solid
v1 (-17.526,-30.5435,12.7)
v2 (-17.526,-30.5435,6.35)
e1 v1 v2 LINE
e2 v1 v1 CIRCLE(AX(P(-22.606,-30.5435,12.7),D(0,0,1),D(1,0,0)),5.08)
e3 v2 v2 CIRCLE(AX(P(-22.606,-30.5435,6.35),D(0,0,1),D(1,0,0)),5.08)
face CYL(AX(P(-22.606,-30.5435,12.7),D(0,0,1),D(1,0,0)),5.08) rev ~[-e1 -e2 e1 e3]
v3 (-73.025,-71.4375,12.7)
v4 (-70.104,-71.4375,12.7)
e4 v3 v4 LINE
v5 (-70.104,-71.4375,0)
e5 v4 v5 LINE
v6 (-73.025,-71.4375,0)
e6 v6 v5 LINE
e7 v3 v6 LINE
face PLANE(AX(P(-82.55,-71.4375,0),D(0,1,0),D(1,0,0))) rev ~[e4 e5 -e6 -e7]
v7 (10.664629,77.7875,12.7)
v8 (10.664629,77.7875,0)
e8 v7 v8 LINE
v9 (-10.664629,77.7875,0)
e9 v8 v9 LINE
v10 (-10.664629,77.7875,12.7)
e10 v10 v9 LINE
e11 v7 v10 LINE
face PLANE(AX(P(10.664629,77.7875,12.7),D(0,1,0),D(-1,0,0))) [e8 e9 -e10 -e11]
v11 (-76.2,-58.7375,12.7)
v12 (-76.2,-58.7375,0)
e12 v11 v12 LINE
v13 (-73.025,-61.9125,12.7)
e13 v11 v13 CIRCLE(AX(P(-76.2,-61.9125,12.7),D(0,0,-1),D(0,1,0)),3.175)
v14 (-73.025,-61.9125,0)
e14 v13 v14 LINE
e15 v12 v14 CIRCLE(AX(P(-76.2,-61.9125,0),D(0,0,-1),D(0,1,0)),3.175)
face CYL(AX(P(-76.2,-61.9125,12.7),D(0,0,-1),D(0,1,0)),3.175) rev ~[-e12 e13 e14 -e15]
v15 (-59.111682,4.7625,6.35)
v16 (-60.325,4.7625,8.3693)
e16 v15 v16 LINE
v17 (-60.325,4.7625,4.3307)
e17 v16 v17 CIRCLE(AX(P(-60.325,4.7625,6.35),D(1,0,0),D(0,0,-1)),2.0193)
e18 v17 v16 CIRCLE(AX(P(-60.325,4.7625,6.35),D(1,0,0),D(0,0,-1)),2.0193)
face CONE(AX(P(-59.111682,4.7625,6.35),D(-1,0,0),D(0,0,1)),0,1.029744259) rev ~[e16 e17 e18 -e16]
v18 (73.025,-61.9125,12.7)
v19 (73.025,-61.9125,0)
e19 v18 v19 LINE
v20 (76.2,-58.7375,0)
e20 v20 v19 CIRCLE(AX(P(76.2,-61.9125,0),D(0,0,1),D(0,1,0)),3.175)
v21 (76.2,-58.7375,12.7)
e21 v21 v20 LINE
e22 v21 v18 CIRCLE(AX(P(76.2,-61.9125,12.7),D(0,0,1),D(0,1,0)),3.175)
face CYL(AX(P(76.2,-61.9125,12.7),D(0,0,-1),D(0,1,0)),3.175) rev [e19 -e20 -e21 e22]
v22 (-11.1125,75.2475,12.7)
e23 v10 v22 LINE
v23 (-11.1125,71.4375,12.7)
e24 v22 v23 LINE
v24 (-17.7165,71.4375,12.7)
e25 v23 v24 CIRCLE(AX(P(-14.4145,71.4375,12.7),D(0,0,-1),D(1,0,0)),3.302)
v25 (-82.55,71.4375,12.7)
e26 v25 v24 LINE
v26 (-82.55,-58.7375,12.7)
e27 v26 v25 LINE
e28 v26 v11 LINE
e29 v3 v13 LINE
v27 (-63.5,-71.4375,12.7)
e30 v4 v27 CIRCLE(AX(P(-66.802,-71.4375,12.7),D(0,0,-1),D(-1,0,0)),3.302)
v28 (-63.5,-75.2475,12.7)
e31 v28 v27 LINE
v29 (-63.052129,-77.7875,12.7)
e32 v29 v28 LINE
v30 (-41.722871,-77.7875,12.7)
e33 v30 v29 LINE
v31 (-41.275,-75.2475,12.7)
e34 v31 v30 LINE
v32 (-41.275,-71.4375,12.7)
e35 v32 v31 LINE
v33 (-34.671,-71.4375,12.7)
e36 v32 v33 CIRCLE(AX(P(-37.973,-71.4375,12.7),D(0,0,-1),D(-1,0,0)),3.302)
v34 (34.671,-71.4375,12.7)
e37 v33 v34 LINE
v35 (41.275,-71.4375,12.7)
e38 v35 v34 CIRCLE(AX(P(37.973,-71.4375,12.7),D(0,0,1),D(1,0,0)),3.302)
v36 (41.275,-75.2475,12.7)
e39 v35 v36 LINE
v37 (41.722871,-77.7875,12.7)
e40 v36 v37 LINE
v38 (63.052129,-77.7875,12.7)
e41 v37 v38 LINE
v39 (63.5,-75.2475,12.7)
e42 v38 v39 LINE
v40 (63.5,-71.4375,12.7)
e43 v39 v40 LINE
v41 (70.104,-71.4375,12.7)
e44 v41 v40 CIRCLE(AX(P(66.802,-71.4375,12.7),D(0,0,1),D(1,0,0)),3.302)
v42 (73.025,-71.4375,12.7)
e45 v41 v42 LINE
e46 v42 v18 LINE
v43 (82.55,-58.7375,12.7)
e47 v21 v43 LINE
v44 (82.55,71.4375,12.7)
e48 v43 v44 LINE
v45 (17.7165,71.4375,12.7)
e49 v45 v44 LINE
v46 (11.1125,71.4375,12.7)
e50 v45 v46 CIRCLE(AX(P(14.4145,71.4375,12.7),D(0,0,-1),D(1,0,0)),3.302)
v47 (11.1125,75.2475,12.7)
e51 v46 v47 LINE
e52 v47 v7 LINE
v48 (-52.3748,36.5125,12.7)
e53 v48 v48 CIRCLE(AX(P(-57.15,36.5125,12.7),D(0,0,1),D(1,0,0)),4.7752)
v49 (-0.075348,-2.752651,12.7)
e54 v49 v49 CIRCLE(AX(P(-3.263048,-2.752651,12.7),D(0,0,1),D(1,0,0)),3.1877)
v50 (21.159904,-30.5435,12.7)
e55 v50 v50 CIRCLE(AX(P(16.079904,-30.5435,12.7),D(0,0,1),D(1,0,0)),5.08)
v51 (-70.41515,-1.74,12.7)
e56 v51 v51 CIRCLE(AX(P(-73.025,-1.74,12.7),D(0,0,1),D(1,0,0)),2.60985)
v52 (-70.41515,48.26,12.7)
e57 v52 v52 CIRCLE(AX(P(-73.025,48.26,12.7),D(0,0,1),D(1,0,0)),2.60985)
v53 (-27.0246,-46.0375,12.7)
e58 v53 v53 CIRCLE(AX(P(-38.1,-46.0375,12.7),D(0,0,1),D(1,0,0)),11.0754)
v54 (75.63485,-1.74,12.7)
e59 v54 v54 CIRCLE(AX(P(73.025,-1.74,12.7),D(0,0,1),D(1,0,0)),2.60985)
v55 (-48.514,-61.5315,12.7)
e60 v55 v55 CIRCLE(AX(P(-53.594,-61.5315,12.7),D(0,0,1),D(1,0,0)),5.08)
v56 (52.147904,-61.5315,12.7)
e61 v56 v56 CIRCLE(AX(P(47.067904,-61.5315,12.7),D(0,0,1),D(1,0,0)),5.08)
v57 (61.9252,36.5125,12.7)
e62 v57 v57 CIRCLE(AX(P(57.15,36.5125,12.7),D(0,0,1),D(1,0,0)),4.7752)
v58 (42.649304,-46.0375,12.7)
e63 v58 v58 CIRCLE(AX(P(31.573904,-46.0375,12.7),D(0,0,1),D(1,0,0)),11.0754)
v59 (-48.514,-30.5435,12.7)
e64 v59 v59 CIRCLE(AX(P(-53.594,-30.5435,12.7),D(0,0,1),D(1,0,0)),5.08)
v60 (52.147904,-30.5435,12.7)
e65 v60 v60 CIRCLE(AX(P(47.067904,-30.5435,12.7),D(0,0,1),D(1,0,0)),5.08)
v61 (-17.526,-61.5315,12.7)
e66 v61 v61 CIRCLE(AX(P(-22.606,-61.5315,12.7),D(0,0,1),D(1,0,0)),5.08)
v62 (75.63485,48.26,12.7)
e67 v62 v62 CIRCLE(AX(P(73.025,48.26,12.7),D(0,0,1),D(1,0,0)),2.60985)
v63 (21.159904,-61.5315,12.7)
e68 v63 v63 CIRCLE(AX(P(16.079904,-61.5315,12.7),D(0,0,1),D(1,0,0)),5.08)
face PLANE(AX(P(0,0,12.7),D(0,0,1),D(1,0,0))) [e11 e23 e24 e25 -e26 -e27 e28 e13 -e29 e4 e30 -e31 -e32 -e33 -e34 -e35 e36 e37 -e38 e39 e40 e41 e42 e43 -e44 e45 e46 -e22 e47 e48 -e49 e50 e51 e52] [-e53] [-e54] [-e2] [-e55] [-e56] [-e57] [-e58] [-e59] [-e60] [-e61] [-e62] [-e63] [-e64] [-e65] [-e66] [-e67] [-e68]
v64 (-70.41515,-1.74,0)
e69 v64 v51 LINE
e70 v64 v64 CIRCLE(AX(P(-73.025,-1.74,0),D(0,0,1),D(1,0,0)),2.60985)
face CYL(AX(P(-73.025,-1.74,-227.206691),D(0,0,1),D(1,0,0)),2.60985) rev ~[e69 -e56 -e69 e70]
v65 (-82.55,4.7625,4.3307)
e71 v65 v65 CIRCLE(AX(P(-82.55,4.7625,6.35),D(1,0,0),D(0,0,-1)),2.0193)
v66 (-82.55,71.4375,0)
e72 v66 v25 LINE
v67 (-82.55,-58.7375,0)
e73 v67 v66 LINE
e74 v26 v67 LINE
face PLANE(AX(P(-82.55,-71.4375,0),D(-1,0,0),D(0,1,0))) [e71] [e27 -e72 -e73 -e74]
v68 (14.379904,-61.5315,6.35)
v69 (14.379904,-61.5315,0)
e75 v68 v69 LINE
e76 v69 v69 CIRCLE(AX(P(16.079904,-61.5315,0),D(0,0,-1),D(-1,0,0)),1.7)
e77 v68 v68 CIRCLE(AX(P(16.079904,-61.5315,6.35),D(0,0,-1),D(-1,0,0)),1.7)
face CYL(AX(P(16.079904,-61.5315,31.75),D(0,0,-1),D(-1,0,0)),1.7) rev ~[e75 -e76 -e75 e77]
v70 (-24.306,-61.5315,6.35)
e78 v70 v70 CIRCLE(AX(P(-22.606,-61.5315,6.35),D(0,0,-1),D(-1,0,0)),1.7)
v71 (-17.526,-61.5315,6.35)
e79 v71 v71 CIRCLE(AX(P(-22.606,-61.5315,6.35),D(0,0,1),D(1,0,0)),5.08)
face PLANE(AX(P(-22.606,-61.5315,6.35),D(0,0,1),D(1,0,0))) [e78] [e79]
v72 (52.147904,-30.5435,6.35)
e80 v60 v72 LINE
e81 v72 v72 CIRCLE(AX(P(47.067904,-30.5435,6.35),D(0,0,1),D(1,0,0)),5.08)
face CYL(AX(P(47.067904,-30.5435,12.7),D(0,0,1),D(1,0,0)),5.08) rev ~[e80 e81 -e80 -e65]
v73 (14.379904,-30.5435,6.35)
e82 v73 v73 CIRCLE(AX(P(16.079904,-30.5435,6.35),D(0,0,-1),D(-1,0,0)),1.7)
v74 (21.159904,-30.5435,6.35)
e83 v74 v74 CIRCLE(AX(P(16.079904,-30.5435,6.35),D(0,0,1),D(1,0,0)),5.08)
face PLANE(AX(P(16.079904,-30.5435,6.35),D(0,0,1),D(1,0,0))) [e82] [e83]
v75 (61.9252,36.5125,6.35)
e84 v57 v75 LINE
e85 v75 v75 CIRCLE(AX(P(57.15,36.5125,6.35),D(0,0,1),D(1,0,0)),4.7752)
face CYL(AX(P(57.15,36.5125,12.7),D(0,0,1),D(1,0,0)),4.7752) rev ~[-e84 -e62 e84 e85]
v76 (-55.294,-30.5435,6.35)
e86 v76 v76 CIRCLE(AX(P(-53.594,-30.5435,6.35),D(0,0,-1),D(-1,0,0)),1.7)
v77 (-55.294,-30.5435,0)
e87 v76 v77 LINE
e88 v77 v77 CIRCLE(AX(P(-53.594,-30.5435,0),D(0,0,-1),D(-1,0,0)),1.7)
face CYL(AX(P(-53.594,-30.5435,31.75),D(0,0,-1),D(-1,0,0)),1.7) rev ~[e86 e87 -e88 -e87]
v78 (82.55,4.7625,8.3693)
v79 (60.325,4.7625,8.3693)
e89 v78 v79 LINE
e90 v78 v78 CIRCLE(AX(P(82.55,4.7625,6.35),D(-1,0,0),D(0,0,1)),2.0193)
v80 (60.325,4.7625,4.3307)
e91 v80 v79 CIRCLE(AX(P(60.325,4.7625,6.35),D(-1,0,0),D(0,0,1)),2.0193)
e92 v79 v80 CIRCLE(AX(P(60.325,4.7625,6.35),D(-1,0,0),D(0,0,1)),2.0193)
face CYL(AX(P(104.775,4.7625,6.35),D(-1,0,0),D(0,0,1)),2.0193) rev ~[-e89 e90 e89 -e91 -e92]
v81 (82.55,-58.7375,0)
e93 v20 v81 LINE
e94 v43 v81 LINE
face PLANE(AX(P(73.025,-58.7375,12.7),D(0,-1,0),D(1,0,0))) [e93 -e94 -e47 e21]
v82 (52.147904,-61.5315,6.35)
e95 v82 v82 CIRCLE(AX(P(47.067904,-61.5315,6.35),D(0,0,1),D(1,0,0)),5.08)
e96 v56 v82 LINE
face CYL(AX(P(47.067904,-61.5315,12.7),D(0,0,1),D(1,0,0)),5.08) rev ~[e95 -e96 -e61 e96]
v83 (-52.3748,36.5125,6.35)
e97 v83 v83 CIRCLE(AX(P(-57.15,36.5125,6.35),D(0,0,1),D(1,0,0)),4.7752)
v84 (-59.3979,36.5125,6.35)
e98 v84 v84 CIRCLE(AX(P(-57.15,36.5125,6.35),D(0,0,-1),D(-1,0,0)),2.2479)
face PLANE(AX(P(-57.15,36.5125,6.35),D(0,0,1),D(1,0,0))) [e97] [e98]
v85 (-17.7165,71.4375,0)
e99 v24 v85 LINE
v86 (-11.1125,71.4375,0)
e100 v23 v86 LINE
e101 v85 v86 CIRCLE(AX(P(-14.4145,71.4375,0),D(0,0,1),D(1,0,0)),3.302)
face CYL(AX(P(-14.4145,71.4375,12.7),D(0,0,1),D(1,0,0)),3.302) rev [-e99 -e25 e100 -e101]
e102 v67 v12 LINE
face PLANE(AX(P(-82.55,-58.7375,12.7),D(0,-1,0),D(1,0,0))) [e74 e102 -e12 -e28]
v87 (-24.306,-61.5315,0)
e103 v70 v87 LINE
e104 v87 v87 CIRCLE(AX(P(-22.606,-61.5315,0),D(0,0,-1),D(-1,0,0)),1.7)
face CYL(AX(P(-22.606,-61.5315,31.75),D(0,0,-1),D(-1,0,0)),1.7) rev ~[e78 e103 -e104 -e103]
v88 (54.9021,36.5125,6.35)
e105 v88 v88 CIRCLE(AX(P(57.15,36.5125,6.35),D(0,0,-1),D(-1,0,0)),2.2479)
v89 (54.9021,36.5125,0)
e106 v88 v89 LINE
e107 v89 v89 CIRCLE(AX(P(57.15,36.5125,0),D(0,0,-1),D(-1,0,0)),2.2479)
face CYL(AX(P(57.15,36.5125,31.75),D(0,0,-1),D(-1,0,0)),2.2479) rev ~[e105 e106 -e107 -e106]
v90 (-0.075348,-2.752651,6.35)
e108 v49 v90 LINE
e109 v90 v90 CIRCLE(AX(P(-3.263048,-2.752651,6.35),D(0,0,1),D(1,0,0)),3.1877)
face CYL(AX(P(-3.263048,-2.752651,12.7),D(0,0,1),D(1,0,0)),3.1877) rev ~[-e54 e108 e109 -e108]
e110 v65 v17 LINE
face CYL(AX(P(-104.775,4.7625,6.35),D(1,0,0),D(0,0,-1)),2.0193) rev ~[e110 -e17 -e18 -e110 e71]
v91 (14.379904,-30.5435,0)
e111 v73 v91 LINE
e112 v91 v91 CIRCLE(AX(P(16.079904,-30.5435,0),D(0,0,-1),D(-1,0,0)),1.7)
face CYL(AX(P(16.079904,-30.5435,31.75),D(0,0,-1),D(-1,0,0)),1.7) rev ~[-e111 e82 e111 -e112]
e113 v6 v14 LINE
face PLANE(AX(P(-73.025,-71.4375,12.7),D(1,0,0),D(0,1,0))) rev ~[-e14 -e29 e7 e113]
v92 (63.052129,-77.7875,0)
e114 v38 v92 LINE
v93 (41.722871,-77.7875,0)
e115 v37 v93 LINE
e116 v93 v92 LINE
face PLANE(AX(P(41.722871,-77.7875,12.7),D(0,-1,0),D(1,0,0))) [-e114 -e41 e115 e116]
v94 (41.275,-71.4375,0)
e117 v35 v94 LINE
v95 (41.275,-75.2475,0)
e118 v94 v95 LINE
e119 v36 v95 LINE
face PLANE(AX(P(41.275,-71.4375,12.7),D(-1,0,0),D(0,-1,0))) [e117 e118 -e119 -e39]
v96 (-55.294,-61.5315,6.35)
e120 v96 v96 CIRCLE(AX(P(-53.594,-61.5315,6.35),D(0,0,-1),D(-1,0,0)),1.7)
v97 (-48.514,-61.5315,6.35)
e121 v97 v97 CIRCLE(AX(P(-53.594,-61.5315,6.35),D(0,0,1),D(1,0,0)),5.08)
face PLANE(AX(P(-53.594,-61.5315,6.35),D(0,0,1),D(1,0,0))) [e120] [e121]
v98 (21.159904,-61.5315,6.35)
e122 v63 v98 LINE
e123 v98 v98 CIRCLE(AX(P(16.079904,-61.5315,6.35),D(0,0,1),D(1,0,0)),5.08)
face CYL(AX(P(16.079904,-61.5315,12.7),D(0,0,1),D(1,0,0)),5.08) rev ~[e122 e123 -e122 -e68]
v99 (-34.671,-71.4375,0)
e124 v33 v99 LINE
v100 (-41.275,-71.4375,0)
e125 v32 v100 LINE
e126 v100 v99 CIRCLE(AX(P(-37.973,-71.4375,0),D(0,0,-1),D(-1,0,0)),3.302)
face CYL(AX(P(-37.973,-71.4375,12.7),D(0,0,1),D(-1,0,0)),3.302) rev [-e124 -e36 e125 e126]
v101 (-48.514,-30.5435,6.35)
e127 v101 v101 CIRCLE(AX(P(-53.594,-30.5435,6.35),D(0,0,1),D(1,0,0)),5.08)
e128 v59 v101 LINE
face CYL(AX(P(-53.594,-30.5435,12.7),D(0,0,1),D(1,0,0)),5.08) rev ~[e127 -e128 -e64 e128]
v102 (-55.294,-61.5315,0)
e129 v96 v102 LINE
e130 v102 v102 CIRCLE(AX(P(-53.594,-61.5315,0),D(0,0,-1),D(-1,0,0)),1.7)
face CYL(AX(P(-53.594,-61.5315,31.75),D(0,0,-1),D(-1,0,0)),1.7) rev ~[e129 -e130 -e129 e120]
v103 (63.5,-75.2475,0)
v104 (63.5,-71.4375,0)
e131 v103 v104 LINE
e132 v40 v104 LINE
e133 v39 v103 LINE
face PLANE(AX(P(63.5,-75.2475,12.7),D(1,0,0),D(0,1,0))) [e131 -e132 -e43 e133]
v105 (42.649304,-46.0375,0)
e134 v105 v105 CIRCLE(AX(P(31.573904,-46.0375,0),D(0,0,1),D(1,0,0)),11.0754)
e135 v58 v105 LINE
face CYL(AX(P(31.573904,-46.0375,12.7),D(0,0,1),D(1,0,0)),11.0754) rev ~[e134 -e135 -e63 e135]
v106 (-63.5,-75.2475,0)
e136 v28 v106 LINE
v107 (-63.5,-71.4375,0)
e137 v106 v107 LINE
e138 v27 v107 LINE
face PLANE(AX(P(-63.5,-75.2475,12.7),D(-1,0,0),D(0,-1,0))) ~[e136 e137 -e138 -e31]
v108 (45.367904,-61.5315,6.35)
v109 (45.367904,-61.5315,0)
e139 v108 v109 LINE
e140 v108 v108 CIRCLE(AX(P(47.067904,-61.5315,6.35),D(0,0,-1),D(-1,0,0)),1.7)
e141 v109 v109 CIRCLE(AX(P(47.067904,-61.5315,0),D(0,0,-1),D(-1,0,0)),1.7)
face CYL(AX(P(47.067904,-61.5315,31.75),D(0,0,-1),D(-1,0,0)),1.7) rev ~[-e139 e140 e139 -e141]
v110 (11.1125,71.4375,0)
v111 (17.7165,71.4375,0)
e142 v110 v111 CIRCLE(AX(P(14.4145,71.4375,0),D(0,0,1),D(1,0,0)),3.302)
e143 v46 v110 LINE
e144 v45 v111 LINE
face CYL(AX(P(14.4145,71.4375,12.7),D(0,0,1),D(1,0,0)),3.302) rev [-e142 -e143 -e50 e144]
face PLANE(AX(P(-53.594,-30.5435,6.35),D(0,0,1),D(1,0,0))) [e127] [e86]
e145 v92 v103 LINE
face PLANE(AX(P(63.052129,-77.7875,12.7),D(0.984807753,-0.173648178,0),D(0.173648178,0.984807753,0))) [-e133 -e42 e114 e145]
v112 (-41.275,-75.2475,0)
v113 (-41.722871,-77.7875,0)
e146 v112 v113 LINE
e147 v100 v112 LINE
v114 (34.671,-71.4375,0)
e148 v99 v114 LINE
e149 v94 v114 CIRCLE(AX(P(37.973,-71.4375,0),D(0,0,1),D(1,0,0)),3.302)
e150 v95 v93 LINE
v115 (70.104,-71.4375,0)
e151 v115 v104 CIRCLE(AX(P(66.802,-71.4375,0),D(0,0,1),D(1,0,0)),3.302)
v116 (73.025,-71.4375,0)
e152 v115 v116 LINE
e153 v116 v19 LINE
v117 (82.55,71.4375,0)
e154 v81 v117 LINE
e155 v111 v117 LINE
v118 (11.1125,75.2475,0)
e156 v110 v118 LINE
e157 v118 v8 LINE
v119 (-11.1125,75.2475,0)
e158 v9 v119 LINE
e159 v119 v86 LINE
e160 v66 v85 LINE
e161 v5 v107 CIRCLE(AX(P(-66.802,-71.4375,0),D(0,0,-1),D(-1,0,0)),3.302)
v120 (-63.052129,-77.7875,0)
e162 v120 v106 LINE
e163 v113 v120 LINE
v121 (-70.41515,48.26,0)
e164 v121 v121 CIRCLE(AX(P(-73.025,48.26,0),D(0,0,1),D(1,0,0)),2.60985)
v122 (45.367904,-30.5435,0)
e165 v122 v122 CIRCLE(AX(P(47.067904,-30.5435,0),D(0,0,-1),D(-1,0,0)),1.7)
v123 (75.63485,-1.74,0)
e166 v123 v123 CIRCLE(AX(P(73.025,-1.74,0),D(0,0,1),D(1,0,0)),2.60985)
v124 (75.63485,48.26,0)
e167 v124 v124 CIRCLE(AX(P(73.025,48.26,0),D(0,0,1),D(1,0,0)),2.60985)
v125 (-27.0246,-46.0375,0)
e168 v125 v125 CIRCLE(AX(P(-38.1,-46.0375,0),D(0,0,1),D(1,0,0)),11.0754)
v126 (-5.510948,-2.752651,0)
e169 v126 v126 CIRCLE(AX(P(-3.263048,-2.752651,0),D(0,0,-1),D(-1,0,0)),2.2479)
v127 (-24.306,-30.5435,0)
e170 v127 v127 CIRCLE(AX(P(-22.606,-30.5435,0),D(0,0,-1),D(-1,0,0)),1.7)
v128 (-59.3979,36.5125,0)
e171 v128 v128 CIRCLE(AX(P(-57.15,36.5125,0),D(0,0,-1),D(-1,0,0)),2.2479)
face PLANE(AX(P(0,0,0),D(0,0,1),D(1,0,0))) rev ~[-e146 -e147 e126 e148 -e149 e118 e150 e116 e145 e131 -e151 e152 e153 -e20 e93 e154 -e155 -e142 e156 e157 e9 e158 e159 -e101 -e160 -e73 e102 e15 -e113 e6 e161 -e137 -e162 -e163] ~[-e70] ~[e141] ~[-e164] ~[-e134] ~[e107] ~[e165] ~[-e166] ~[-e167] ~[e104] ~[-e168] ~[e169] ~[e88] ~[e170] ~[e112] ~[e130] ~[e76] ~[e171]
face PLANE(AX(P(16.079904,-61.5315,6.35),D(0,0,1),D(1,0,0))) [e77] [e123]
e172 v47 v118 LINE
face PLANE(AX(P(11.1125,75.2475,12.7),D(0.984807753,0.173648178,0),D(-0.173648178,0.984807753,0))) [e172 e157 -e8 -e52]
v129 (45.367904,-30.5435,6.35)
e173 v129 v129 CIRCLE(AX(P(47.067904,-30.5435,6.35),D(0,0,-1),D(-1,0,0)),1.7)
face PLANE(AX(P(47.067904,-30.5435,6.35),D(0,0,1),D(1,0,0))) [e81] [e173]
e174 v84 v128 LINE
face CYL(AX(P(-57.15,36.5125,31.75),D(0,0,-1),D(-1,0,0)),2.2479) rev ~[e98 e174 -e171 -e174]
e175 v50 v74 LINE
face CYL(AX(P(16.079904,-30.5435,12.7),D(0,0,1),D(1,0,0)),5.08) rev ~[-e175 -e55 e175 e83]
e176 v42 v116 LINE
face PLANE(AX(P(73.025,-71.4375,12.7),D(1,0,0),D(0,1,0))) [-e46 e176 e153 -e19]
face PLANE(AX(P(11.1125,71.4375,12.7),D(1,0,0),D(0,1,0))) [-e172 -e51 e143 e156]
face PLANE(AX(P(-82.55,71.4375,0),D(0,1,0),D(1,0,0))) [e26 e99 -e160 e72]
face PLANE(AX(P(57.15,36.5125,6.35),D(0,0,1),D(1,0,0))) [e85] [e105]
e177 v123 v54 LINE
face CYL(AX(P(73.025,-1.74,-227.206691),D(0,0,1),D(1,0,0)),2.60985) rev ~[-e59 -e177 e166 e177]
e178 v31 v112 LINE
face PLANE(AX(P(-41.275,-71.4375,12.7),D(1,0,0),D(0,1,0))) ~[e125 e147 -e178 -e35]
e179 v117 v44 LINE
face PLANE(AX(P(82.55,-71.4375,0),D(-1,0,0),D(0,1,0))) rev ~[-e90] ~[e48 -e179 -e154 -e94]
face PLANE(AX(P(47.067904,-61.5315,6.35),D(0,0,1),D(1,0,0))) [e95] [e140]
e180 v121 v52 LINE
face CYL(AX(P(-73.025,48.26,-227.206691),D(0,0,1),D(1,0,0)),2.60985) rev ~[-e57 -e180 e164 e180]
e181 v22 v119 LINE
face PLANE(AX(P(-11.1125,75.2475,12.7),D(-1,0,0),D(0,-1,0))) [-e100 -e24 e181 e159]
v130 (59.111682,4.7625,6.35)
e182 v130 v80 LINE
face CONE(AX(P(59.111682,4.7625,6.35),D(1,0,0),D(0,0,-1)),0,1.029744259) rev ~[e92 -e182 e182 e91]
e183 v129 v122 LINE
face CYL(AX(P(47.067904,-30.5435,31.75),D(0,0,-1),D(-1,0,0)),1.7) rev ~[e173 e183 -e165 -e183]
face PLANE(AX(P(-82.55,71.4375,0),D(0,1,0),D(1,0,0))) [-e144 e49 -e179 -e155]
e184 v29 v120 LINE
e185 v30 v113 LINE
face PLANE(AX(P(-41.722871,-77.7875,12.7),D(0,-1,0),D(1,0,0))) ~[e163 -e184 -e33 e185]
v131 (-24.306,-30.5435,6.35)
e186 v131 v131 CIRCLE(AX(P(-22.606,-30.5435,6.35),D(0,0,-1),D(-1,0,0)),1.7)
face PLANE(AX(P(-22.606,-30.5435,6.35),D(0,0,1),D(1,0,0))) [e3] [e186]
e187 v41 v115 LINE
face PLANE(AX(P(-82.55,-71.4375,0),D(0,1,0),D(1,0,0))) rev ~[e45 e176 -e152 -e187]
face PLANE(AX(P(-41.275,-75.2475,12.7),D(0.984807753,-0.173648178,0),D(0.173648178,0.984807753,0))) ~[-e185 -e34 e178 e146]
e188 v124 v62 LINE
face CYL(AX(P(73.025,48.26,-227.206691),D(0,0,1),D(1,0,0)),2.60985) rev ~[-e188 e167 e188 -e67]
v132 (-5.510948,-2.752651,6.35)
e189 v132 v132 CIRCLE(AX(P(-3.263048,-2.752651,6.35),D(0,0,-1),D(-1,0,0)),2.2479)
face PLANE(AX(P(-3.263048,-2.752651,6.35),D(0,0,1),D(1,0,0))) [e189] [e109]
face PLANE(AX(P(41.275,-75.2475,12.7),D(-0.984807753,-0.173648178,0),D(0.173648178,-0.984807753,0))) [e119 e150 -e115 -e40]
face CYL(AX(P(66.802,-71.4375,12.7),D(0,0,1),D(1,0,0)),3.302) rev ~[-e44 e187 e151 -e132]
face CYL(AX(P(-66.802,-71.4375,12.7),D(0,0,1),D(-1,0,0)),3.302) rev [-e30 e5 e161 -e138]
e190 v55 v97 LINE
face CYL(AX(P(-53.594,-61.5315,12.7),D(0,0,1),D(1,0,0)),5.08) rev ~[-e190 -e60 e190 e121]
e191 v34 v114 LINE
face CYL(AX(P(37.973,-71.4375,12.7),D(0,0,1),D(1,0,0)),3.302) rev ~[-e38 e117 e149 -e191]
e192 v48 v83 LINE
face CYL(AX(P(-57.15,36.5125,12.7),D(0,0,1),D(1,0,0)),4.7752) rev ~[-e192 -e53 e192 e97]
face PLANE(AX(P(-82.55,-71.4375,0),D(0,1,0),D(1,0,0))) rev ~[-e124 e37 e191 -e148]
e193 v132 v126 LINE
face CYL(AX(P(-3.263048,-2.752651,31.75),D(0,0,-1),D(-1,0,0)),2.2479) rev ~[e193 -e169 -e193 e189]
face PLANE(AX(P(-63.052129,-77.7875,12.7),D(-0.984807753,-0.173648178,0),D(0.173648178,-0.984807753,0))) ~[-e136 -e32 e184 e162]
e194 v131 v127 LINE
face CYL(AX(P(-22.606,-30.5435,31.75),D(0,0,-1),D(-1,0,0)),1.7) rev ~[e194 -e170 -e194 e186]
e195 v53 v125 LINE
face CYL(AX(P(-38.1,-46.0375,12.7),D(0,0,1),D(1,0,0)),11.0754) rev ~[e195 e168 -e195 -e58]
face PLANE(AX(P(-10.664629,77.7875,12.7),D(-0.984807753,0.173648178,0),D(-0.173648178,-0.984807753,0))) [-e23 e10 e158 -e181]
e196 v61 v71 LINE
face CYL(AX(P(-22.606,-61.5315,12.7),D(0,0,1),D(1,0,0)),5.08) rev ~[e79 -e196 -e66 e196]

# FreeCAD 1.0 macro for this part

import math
import FreeCAD as App
import Part
import Sketcher

V = App.Vector
Q = App.Units.Quantity


def edges_at(feature, points):
    """Names of the edges that pass closest to the given points."""
    edges = feature.Shape.Edges
    near = lambda p: min(range(len(edges)), key=lambda i: edges[i].distToShape(Part.Vertex(*p))[0])
    return sorted({f"Edge{near(p) + 1}" for p in points})


def add_polygon(sketch, points):
    """Adds a closed chain of lines whose ends are joined by coincident constraints."""
    first, n = sketch.GeometryCount, len(points)
    for a, b in zip(points, points[1:] + points[:1]):
        sketch.addGeometry(Part.LineSegment(App.Vector(*a, 0), App.Vector(*b, 0)), False)
    for i in range(n):
        sketch.addConstraint(Sketcher.Constraint("Coincident", first + i, 2, first + (i + 1) % n, 1))

doc = App.newDocument("Part")
body = doc.addObject("PartDesign::Body", "Body")

# Sketch on XY plane
sketch1 = body.newObject("Sketcher::SketchObject", "Sketch")
sketch1.AttachmentSupport = (doc.getObject("XY_Plane"), [""])
sketch1.MapMode = "FlatFace"
add_polygon(sketch1, [(-83, 71), (-83, -71), (83, -71), (83, 71)])  # lines 0-3
sketch1.addConstraint([
    Sketcher.Constraint("Vertical", 0),
    Sketcher.Constraint("Horizontal", 1),
    Sketcher.Constraint("Vertical", 2),
    Sketcher.Constraint("Horizontal", 3),
    Sketcher.Constraint("Symmetric", 0, 2, 2, 2, -1, 1),
    Sketcher.Constraint("DistanceX", 1, 1, 1, 2, Q("6.5 in")),
    Sketcher.Constraint("DistanceY", 0, 2, 0, 1, Q("5.625 in")),
])
pad1 = body.newObject("PartDesign::Pad", "Pad")
pad1.Profile = sketch1
pad1.Length = Q("0.5 in")

# Sketch on XY plane
sketch2 = body.newObject("Sketcher::SketchObject", "Sketch001")
sketch2.AttachmentSupport = (doc.getObject("XY_Plane"), [""])
sketch2.MapMode = "FlatFace"
sketch2.AttachmentOffset = App.Placement(V(0, 0, 0.5 * 25.4), App.Rotation())
add_polygon(sketch2, [(-11.1, 71.4), (11.1, 71.4), (11.1, 75.2), (10.7, 77.8), (-10.7, 77.8), (-11.1, 75.2)])  # lines 0-5
sketch2.addConstraint([
    Sketcher.Constraint("Horizontal", 0),
    Sketcher.Constraint("Vertical", 1),
    Sketcher.Constraint("Horizontal", 3),
    Sketcher.Constraint("Vertical", 5),
    Sketcher.Constraint("Symmetric", 1, 2, 4, 2, -2),
    Sketcher.Constraint("Equal", 2, 4),
    Sketcher.Constraint("Angle", 2, Q("100 deg")),
    Sketcher.Constraint("DistanceY", 1, 1, 1, 2, Q("0.15 in")),
    Sketcher.Constraint("DistanceY", 1, 2, 2, 2, Q("0.1 in")),
    Sketcher.Constraint("DistanceX", 0, 1, 0, 2, Q("0.875 in")),
    Sketcher.Constraint("DistanceY", -1, 1, 0, 2, Q("2.8125 in")),
])
pad2 = body.newObject("PartDesign::Pad", "Pad001")
pad2.Profile = sketch2
pad2.Length = Q("0.5 in")
pad2.Reversed = True

# Sketch on XY plane
sketch3 = body.newObject("Sketcher::SketchObject", "Sketch002")
sketch3.AttachmentSupport = (doc.getObject("XY_Plane"), [""])
sketch3.MapMode = "FlatFace"
sketch3.AttachmentOffset = App.Placement(V(0, 0, 0.5 * 25.4), App.Rotation())
sketch3.addGeometry([
    Part.LineSegment(V(-11.1, 71.4, 0), V(-17.7, 71.4, 0)),
    Part.ArcOfCircle(Part.Circle(V(-14.4, 71.4, 0), V(0, 0, 1), 3.3), math.radians(180), math.radians(360)),
], False)
sketch3.addConstraint([
    Sketcher.Constraint("Coincident", 0, 1, 1, 2),
    Sketcher.Constraint("Coincident", 1, 1, 0, 2),
    Sketcher.Constraint("Horizontal", 0),
    Sketcher.Constraint("Horizontal", 1, 3, 0, 1),
    Sketcher.Constraint("Radius", 1, Q("0.13 in")),
    Sketcher.Constraint("DistanceY", -1, 1, 1, 3, Q("2.8125 in")),
    Sketcher.Constraint("DistanceX", 0, 1, -1, 1, Q("0.4375 in")),
])
pocket1 = body.newObject("PartDesign::Pocket", "Pocket")
pocket1.Profile = sketch3
pocket1.Type = "UpToFirst"

# Sketch on XY plane
sketch4 = body.newObject("Sketcher::SketchObject", "Sketch003")
sketch4.AttachmentSupport = (doc.getObject("XY_Plane"), [""])
sketch4.MapMode = "FlatFace"
sketch4.AttachmentOffset = App.Placement(V(0, 0, 0.5 * 25.4), App.Rotation())
sketch4.addGeometry([
    Part.LineSegment(V(17.7, 71.4, 0), V(11.1, 71.4, 0)),
    Part.ArcOfCircle(Part.Circle(V(14.4, 71.4, 0), V(0, 0, 1), 3.3), math.radians(180), math.radians(360)),
], False)
sketch4.addConstraint([
    Sketcher.Constraint("Coincident", 0, 1, 1, 2),
    Sketcher.Constraint("Coincident", 1, 1, 0, 2),
    Sketcher.Constraint("Horizontal", 0),
    Sketcher.Constraint("Horizontal", 1, 3, 0, 1),
    Sketcher.Constraint("Radius", 1, Q("0.13 in")),
    Sketcher.Constraint("DistanceY", -1, 1, 1, 3, Q("2.8125 in")),
    Sketcher.Constraint("DistanceX", -1, 1, 1, 1, Q("0.4375 in")),
])
pocket2 = body.newObject("PartDesign::Pocket", "Pocket001")
pocket2.Profile = sketch4
pocket2.Type = "UpToFirst"

# Sketch on XY plane
sketch5 = body.newObject("Sketcher::SketchObject", "Sketch004")
sketch5.AttachmentSupport = (doc.getObject("XY_Plane"), [""])
sketch5.MapMode = "FlatFace"
sketch5.AttachmentOffset = App.Placement(V(0, 0, 0.5 * 25.4), App.Rotation())
add_polygon(sketch5, [(63.5, -71.4), (41.3, -71.4), (41.3, -75.2), (41.7, -77.8), (63.1, -77.8), (63.5, -75.2)])  # lines 0-5
sketch5.addConstraint([
    Sketcher.Constraint("Horizontal", 0),
    Sketcher.Constraint("Vertical", 1),
    Sketcher.Constraint("Horizontal", 3),
    Sketcher.Constraint("Vertical", 5),
    Sketcher.Constraint("Horizontal", 1, 2, 4, 2),
    Sketcher.Constraint("Equal", 2, 4),
    Sketcher.Constraint("Angle", 2, Q("-80 deg")),
    Sketcher.Constraint("DistanceY", 1, 2, 1, 1, Q("0.15 in")),
    Sketcher.Constraint("DistanceX", -1, 1, 4, 2, Q("2.5 in")),
    Sketcher.Constraint("DistanceY", 2, 2, 1, 2, Q("0.1 in")),
    Sketcher.Constraint("DistanceX", 0, 2, 0, 1, Q("0.875 in")),
    Sketcher.Constraint("DistanceY", 0, 2, -1, 1, Q("2.8125 in")),
])
pad3 = body.newObject("PartDesign::Pad", "Pad002")
pad3.Profile = sketch5
pad3.Length = Q("0.5 in")
pad3.Reversed = True

# Sketch on YZ plane
sketch6 = body.newObject("Sketcher::SketchObject", "Sketch005")
sketch6.AttachmentSupport = (doc.getObject("YZ_Plane"), [""])
sketch6.MapMode = "FlatFace"
sketch6.AttachmentOffset = App.Placement(V(0, 0, 3.25 * 25.4), App.Rotation())
sketch6.addGeometry(Part.Circle(V(4.8, 6.3, 0), V(0, 0, 1), 2), False)
sketch6.addConstraint([
    Sketcher.Constraint("Diameter", 0, Q("0.159 in")),
    Sketcher.Constraint("DistanceY", -1, 1, 0, 3, Q("0.25 in")),
    Sketcher.Constraint("DistanceX", -1, 1, 0, 3, Q("0.1875 in")),
])
doc.recompute()
hole = body.newObject("PartDesign::Hole", "Hole")
hole.Profile = sketch6
hole.ThreadType = "None"
hole.Diameter = Q("0.159 in")
hole.DepthType = "Dimension"
hole.Depth = Q("0.875 in")
hole.DrillPoint = "Angled"
hole.DrillPointAngle = 118

# Sketch on YZ plane
sketch7 = body.newObject("Sketcher::SketchObject", "Sketch006")
sketch7.AttachmentSupport = (doc.getObject("YZ_Plane"), [""])
sketch7.MapMode = "FlatFace"
sketch7.AttachmentOffset = App.Placement(V(0, 0, -3.25 * 25.4), App.Rotation())
sketch7.addGeometry(Part.Circle(V(4.8, 6.3, 0), V(0, 0, 1), 2), False)
sketch7.addConstraint([
    Sketcher.Constraint("Diameter", 0, Q("0.159 in")),
    Sketcher.Constraint("DistanceY", -1, 1, 0, 3, Q("0.25 in")),
    Sketcher.Constraint("DistanceX", -1, 1, 0, 3, Q("0.1875 in")),
])
doc.recompute()
hole2 = body.newObject("PartDesign::Hole", "Hole001")
hole2.Profile = sketch7
hole2.ThreadType = "None"
hole2.Diameter = Q("0.159 in")
hole2.DepthType = "Dimension"
hole2.Depth = Q("0.875 in")
hole2.DrillPoint = "Angled"
hole2.DrillPointAngle = 118
hole2.Reversed = True

# Sketch on XY plane
sketch8 = body.newObject("Sketcher::SketchObject", "Sketch007")
sketch8.AttachmentSupport = (doc.getObject("XY_Plane"), [""])
sketch8.MapMode = "FlatFace"
sketch8.AttachmentOffset = App.Placement(V(0, 0, 0.5 * 25.4), App.Rotation())
sketch8.addGeometry([
    Part.LineSegment(V(34.7, -71.4, 0), V(41.3, -71.4, 0)),
    Part.ArcOfCircle(Part.Circle(V(38, -71.4, 0), V(0, 0, 1), 3.3), math.radians(0), math.radians(180)),
    Part.LineSegment(V(63.5, -71.4, 0), V(70.1, -71.4, 0)),
    Part.ArcOfCircle(Part.Circle(V(66.8, -71.4, 0), V(0, 0, 1), 3.3), math.radians(0), math.radians(180)),
], False)
sketch8.addConstraint([
    Sketcher.Constraint("Coincident", 0, 1, 1, 2),
    Sketcher.Constraint("Coincident", 1, 1, 0, 2),
    Sketcher.Constraint("Coincident", 2, 1, 3, 2),
    Sketcher.Constraint("Coincident", 3, 1, 2, 2),
    Sketcher.Constraint("Horizontal", 0),
    Sketcher.Constraint("Horizontal", 2),
    Sketcher.Constraint("Equal", 1, 3),
    Sketcher.Constraint("Horizontal", 1, 3, 3, 3),
    Sketcher.Constraint("Horizontal", 3, 3, 0, 1),
    Sketcher.Constraint("Horizontal", 1, 1, 2, 1),
    Sketcher.Constraint("Radius", 1, Q("0.13 in")),
    Sketcher.Constraint("DistanceX", -1, 1, 2, 1, Q("2.5 in")),
    Sketcher.Constraint("DistanceX", -1, 1, 1, 3, Q("1.495 in")),
    Sketcher.Constraint("DistanceY", 1, 3, -1, 1, Q("2.8125 in")),
])
pocket3 = body.newObject("PartDesign::Pocket", "Pocket002")
pocket3.Profile = sketch8
pocket3.Length = Q("0.5 in")
doc.recompute()

mirrored = body.newObject("PartDesign::Mirrored", "Mirrored")
mirrored.Originals = [pad3, pocket3]
mirrored.MirrorPlane = (doc.getObject("YZ_Plane"), [""])
body.Tip = mirrored

# Sketch on XY plane
sketch9 = body.newObject("Sketcher::SketchObject", "Sketch008")
sketch9.AttachmentSupport = (doc.getObject("XY_Plane"), [""])
sketch9.MapMode = "FlatFace"
sketch9.AttachmentOffset = App.Placement(V(0, 0, 0.5 * 25.4), App.Rotation())
sketch9.addGeometry([
    Part.Circle(V(-53.6, -61.5, 0), V(0, 0, 1), 5.1),  # 0
    Part.Circle(V(-57.1, 36.5, 0), V(0, 0, 1), 4.8),  # 1
    Part.Circle(V(-53.6, -30.5, 0), V(0, 0, 1), 5.1),  # 2
    Part.Circle(V(-22.6, -30.5, 0), V(0, 0, 1), 5.1),  # 3
    Part.Circle(V(-22.6, -61.5, 0), V(0, 0, 1), 5.1),  # 4
    Part.Circle(V(-38.1, -46, 0), V(0, 0, 1), 11.1),  # 5
    Part.Circle(V(-3.3, -2.8, 0), V(0, 0, 1), 3.2),  # 6
    Part.Circle(V(31.6, -46, 0), V(0, 0, 1), 11.1),  # 7
    Part.Circle(V(16.1, -30.5, 0), V(0, 0, 1), 5.1),  # 8
    Part.Circle(V(47.1, -30.5, 0), V(0, 0, 1), 5.1),  # 9
    Part.Circle(V(47.1, -61.5, 0), V(0, 0, 1), 5.1),  # 10
    Part.Circle(V(16.1, -61.5, 0), V(0, 0, 1), 5.1),  # 11
    Part.Circle(V(57.1, 36.5, 0), V(0, 0, 1), 4.8),  # 12
], False)
sketch9.addConstraint([
    Sketcher.Constraint("Equal", 0, 2),
    Sketcher.Constraint("Equal", 2, 3),
    Sketcher.Constraint("Equal", 3, 4),
    Sketcher.Constraint("Equal", 5, 7),
    Sketcher.Constraint("Equal", 4, 8),
    Sketcher.Constraint("Equal", 8, 9),
    Sketcher.Constraint("Equal", 9, 10),
    Sketcher.Constraint("Equal", 10, 11),
    Sketcher.Constraint("Equal", 1, 12),
    Sketcher.Constraint("Symmetric", 1, 3, 12, 3, -2),
    Sketcher.Constraint("Horizontal", 2, 3, 3, 3),
    Sketcher.Constraint("Horizontal", 0, 3, 4, 3),
    Sketcher.Constraint("Horizontal", 5, 3, 7, 3),
    Sketcher.Constraint("Horizontal", 3, 3, 8, 3),
    Sketcher.Constraint("Horizontal", 8, 3, 9, 3),
    Sketcher.Constraint("Horizontal", 4, 3, 10, 3),
    Sketcher.Constraint("Horizontal", 10, 3, 11, 3),
    Sketcher.Constraint("Vertical", 0, 3, 2, 3),
    Sketcher.Constraint("Vertical", 3, 3, 4, 3),
    Sketcher.Constraint("Vertical", 9, 3, 10, 3),
    Sketcher.Constraint("Vertical", 8, 3, 11, 3),
    Sketcher.Constraint("Diameter", 0, Q("0.4 in")),
    Sketcher.Constraint("Diameter", 1, Q("0.376 in")),
    Sketcher.Constraint("Diameter", 6, Q("0.251 in")),
    Sketcher.Constraint("DistanceX", 5, 3, -1, 1, Q("1.5 in")),
    Sketcher.Constraint("Diameter", 5, 22.1508),
    Sketcher.Constraint("DistanceX", 0, 3, -1, 1, Q("2.11 in")),
    Sketcher.Constraint("DistanceX", 1, 3, -1, 1, Q("2.25 in")),
    Sketcher.Constraint("DistanceX", 3, 3, -1, 1, Q("0.89 in")),
    Sketcher.Constraint("DistanceY", 0, 3, 1, 3, Q("3.86 in")),
    Sketcher.Constraint("DistanceY", 0, 3, 2, 3, Q("1.22 in")),
    Sketcher.Constraint("DistanceY", 0, 3, 5, 3, Q("0.61 in")),
    Sketcher.Constraint("DistanceX", 8, 3, 7, 3, Q("0.61 in")),
    Sketcher.Constraint("DistanceX", 7, 3, 9, 3, Q("0.61 in")),
    Sketcher.Constraint("DistanceY", -1, 1, 1, 3, Q("1.4375 in")),
    Sketcher.Constraint("DistanceX", 6, 3, -1, 1, 3.263048),
    Sketcher.Constraint("DistanceY", 6, 3, -1, 1, 2.752651),
    Sketcher.Constraint("DistanceX", 6, 3, 7, 3, 34.836952),
])
pocket4 = body.newObject("PartDesign::Pocket", "Pocket003")
pocket4.Profile = sketch9
pocket4.Length = Q("0.25 in")

# Sketch on XY plane
sketch10 = body.newObject("Sketcher::SketchObject", "Sketch009")
sketch10.AttachmentSupport = (doc.getObject("XY_Plane"), [""])
sketch10.MapMode = "FlatFace"
sketch10.AttachmentOffset = App.Placement(V(0, 0, 0.5 * 25.4), App.Rotation())
sketch10.addGeometry([
    Part.Circle(V(-57.1, 36.5, 0), V(0, 0, 1), 2.2),
    Part.Circle(V(57.1, 36.5, 0), V(0, 0, 1), 2.2),
    Part.Circle(V(-3.3, -2.8, 0), V(0, 0, 1), 2.2),
], False)
sketch10.addConstraint([
    Sketcher.Constraint("Equal", 0, 1),
    Sketcher.Constraint("Equal", 1, 2),
    Sketcher.Constraint("Symmetric", 0, 3, 1, 3, -2),
    Sketcher.Constraint("Diameter", 0, Q("0.177 in")),
    Sketcher.Constraint("DistanceX", 0, 3, 1, 3, Q("4.5 in")),
    Sketcher.Constraint("DistanceY", -1, 1, 0, 3, Q("1.4375 in")),
    Sketcher.Constraint("DistanceX", 2, 3, -1, 1, 3.263048),
    Sketcher.Constraint("DistanceY", 2, 3, -1, 1, 2.752651),
])
doc.recompute()
hole3 = body.newObject("PartDesign::Hole", "Hole002")
hole3.Profile = sketch10
hole3.ThreadType = "None"
hole3.Diameter = Q("0.177 in")
hole3.DepthType = "Dimension"
hole3.Depth = Q("0.75 in")
hole3.DrillPoint = "Angled"
hole3.DrillPointAngle = 118

# Sketch on XY plane
sketch11 = body.newObject("Sketcher::SketchObject", "Sketch010")
sketch11.AttachmentSupport = (doc.getObject("XY_Plane"), [""])
sketch11.MapMode = "FlatFace"
sketch11.AttachmentOffset = App.Placement(V(0, 0, 0.5 * 25.4), App.Rotation())
sketch11.addGeometry([
    Part.Circle(V(-53.6, -30.5, 0), V(0, 0, 1), 1.7),  # 0
    Part.Circle(V(-22.6, -30.5, 0), V(0, 0, 1), 1.7),  # 1
    Part.Circle(V(-22.6, -61.5, 0), V(0, 0, 1), 1.7),  # 2
    Part.Circle(V(-53.6, -61.5, 0), V(0, 0, 1), 1.7),  # 3
    Part.Circle(V(16.1, -61.5, 0), V(0, 0, 1), 1.7),  # 4
    Part.Circle(V(16.1, -30.5, 0), V(0, 0, 1), 1.7),  # 5
    Part.Circle(V(47.1, -30.5, 0), V(0, 0, 1), 1.7),  # 6
    Part.Circle(V(47.1, -61.5, 0), V(0, 0, 1), 1.7),  # 7
], False)
sketch11.addConstraint([
    Sketcher.Constraint("Equal", 0, 1),
    Sketcher.Constraint("Equal", 1, 2),
    Sketcher.Constraint("Equal", 2, 3),
    Sketcher.Constraint("Equal", 3, 4),
    Sketcher.Constraint("Equal", 4, 5),
    Sketcher.Constraint("Equal", 5, 6),
    Sketcher.Constraint("Equal", 6, 7),
    Sketcher.Constraint("Horizontal", 0, 3, 1, 3),
    Sketcher.Constraint("Horizontal", 2, 3, 3, 3),
    Sketcher.Constraint("Horizontal", 3, 3, 4, 3),
    Sketcher.Constraint("Horizontal", 1, 3, 5, 3),
    Sketcher.Constraint("Horizontal", 5, 3, 6, 3),
    Sketcher.Constraint("Horizontal", 4, 3, 7, 3),
    Sketcher.Constraint("Vertical", 1, 3, 2, 3),
    Sketcher.Constraint("Vertical", 0, 3, 3, 3),
    Sketcher.Constraint("Vertical", 4, 3, 5, 3),
    Sketcher.Constraint("Vertical", 6, 3, 7, 3),
    Sketcher.Constraint("Diameter", 0, 3.4),
    Sketcher.Constraint("DistanceX", 0, 3, -1, 1, Q("2.11 in")),
    Sketcher.Constraint("DistanceX", 1, 3, -1, 1, Q("0.89 in")),
    Sketcher.Constraint("DistanceY", 2, 3, 1, 3, Q("1.22 in")),
    Sketcher.Constraint("DistanceX", 5, 3, 6, 3, Q("1.22 in")),
    Sketcher.Constraint("DistanceY", 0, 3, -1, 1, Q("1.2025 in")),
    Sketcher.Constraint("DistanceX", -1, 1, 4, 3, 16.079904),
])
doc.recompute()
hole4 = body.newObject("PartDesign::Hole", "Hole003")
hole4.Profile = sketch11
hole4.ThreadType = "None"
hole4.Diameter = 3.4
hole4.DepthType = "Dimension"
hole4.Depth = Q("0.75 in")
hole4.DrillPoint = "Angled"
hole4.DrillPointAngle = 118

# Sketch on XY plane
sketch12 = body.newObject("Sketcher::SketchObject", "Sketch011")
sketch12.AttachmentSupport = (doc.getObject("XY_Plane"), [""])
sketch12.MapMode = "FlatFace"
sketch12.AttachmentOffset = App.Placement(V(0, 0, 0.5 * 25.4), App.Rotation())
sketch12.addGeometry([
    Part.Circle(V(32, -46, 0), V(0, 0, 1), 11),
    Part.Circle(V(-38, -46, 0), V(0, 0, 1), 11),
], False)
sketch12.addConstraint([
    Sketcher.Constraint("Equal", 0, 1),
    Sketcher.Constraint("Horizontal", 0, 3, 1, 3),
    Sketcher.Constraint("DistanceX", 1, 3, -1, 1, Q("1.5 in")),
    Sketcher.Constraint("Diameter", 0, 22.1508),
    Sketcher.Constraint("DistanceY", 0, 3, -1, 1, Q("1.8125 in")),
    Sketcher.Constraint("DistanceX", -1, 1, 0, 3, 31.573904),
])
pocket5 = body.newObject("PartDesign::Pocket", "Pocket004")
pocket5.Profile = sketch12
pocket5.Length = Q("0.5 in")

# Sketch on XY plane
sketch13 = body.newObject("Sketcher::SketchObject", "Sketch012")
sketch13.AttachmentSupport = (doc.getObject("XY_Plane"), [""])
sketch13.MapMode = "FlatFace"
sketch13.AttachmentOffset = App.Placement(V(0, 0, 0.5 * 25.4), App.Rotation())
add_polygon(sketch13, [(-83, -59), (-83, -71), (-73, -71), (-73, -59)])  # lines 0-3
add_polygon(sketch13, [(73, -59), (73, -71), (83, -71), (83, -59)])  # lines 4-7
sketch13.addConstraint([
    Sketcher.Constraint("Vertical", 0),
    Sketcher.Constraint("Horizontal", 1),
    Sketcher.Constraint("Vertical", 2),
    Sketcher.Constraint("Horizontal", 3),
    Sketcher.Constraint("Vertical", 4),
    Sketcher.Constraint("Horizontal", 5),
    Sketcher.Constraint("Vertical", 6),
    Sketcher.Constraint("Horizontal", 7),
    Sketcher.Constraint("Symmetric", 1, 2, 4, 2, -2),
    Sketcher.Constraint("Symmetric", 3, 2, 6, 2, -2),
    Sketcher.Constraint("DistanceY", 0, 2, 0, 1, Q("0.5 in")),
    Sketcher.Constraint("DistanceX", 0, 2, 5, 2, Q("6.5 in")),
    Sketcher.Constraint("DistanceX", 1, 1, 1, 2, Q("0.375 in")),
    Sketcher.Constraint("DistanceY", 0, 2, -1, 1, Q("2.8125 in")),
])
pocket6 = body.newObject("PartDesign::Pocket", "Pocket005")
pocket6.Profile = sketch13
pocket6.Type = "ThroughAll"
doc.recompute()

fillet = body.newObject("PartDesign::Fillet", "Fillet")
fillet.Base = (pocket6, edges_at(pocket6, [(-73.025, -58.737, 6.35), (73.025, -58.737, 6.35)]))
fillet.Radius = Q("0.125 in")

# Sketch on XY plane
sketch14 = body.newObject("Sketcher::SketchObject", "Sketch013")
sketch14.AttachmentSupport = (doc.getObject("XY_Plane"), [""])
sketch14.MapMode = "FlatFace"
sketch14.addGeometry([
    Part.Circle(V(73, 48.3, 0), V(0, 0, 1), 2.6),
    Part.Circle(V(-73, 48.3, 0), V(0, 0, 1), 2.6),
    Part.Circle(V(-73, -1.7, 0), V(0, 0, 1), 2.6),
    Part.Circle(V(73, -1.7, 0), V(0, 0, 1), 2.6),
], False)
sketch14.addConstraint([
    Sketcher.Constraint("Equal", 0, 1),
    Sketcher.Constraint("Equal", 1, 2),
    Sketcher.Constraint("Equal", 2, 3),
    Sketcher.Constraint("Symmetric", 0, 3, 1, 3, -2),
    Sketcher.Constraint("Symmetric", 2, 3, 3, 3, -2),
    Sketcher.Constraint("Vertical", 1, 3, 2, 3),
    Sketcher.Constraint("Diameter", 0, Q("0.2055 in")),
    Sketcher.Constraint("DistanceY", -1, 1, 0, 3, Q("1.9 in")),
    Sketcher.Constraint("DistanceX", 1, 3, 0, 3, Q("5.75 in")),
    Sketcher.Constraint("DistanceY", 2, 3, -1, 1, 1.74),
])
doc.recompute()
hole5 = body.newObject("PartDesign::Hole", "Hole004")
hole5.Profile = sketch14
hole5.ThreadType = "None"
hole5.Diameter = Q("0.2055 in")
hole5.DepthType = "ThroughAll"
hole5.Reversed = True

doc.recompute()
